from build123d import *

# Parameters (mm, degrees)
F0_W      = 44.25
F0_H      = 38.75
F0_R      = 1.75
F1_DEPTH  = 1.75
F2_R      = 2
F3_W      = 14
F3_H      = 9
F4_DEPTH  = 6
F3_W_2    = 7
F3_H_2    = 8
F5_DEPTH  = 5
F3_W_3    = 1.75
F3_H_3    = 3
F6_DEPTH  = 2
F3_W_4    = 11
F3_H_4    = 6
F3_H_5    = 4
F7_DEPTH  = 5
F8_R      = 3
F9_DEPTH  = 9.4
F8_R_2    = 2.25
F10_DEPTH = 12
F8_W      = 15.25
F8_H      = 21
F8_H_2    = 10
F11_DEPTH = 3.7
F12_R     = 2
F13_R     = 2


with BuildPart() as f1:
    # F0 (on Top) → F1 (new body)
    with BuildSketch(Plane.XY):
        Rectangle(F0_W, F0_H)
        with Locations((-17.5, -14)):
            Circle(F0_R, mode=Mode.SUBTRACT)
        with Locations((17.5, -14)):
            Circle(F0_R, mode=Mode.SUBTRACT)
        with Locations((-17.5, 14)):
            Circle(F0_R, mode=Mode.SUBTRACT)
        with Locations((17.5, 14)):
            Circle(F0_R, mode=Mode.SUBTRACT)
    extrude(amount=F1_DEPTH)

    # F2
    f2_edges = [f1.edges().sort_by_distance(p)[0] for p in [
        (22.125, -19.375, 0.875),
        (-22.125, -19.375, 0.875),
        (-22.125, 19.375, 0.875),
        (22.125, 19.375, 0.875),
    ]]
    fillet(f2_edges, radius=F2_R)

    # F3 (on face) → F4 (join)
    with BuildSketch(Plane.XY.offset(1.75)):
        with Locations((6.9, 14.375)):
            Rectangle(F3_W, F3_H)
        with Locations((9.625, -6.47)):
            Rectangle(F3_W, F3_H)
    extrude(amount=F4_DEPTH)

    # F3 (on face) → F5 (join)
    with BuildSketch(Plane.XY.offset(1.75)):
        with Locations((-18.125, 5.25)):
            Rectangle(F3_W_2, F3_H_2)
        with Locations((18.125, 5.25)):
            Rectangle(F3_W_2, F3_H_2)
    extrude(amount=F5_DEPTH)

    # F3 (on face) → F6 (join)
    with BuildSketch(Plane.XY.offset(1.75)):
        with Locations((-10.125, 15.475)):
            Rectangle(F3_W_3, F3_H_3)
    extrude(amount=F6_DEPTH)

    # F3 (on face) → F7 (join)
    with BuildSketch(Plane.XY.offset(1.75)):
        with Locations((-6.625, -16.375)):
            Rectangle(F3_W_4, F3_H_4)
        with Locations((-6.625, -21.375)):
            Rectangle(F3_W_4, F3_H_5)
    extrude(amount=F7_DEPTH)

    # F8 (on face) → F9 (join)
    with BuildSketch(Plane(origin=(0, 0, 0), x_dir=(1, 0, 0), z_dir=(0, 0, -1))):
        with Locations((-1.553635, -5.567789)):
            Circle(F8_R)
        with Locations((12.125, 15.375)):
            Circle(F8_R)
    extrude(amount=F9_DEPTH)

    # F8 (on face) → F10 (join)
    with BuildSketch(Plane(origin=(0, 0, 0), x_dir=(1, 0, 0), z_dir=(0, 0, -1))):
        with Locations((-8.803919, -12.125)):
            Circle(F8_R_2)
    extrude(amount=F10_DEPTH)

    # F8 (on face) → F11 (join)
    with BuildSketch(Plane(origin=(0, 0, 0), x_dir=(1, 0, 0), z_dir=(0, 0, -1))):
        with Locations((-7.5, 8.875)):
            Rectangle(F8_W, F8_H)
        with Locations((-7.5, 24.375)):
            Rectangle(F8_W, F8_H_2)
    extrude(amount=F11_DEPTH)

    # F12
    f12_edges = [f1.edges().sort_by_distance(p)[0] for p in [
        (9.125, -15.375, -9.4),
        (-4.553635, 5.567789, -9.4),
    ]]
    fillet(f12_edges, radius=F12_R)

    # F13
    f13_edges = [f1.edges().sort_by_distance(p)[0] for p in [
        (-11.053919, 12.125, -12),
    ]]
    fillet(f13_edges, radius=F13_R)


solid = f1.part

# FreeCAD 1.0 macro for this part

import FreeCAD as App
import Part
import Sketcher
from FreeCAD import Vector
Q = App.Units.Quantity


def edges_at(feature, points):
    """Names of the edges that pass closest to the given points."""
    edges = feature.Shape.Edges
    near = lambda p: min(range(len(edges)), key=lambda i: edges[i].distToShape(Part.Vertex(*p))[0])
    return sorted({f"Edge{near(p) + 1}" for p in points})


def add_polygon(sketch, points):
    """Adds a closed chain of lines whose ends are joined by coincident constraints."""
    first, n = sketch.GeometryCount, len(points)
    for a, b in zip(points, points[1:] + points[:1]):
        sketch.addGeometry(Part.LineSegment(App.Vector(*a, 0), App.Vector(*b, 0)), False)
    for i in range(n):
        sketch.addConstraint(Sketcher.Constraint("Coincident", first + i, 2, first + (i + 1) % n, 1))

doc = App.newDocument("Part")
params = doc.addObject("Spreadsheet::Sheet", "Params")
for row, (alias, value) in enumerate([
    ("sketch1_diameter", "3.5 mm"),
    ("sketch1_width", "44.25 mm"),
    ("sketch1_height", "38.75 mm"),
    ("pad1_length", "1.75 mm"),
    ("fillet_radius", "2 mm"),
    ("sketch2_width", "14 mm"),
    ("sketch2_height", "9 mm"),
    ("pad2_length", "6 mm"),
    ("sketch3_width", "7 mm"),
    ("sketch3_height", "8 mm"),
    ("pad3_length", "5 mm"),
    ("sketch4_height", "3 mm"),
    ("sketch4_width", "1.75 mm"),
    ("pad4_length", "2 mm"),
    ("sketch5_width", "11 mm"),
    ("sketch5_height", "10 mm"),
    ("pad5_length", "5 mm"),
    ("sketch6_diameter", "6 mm"),
    ("pad6_length", "9.4 mm"),
    ("sketch7_diameter", "4.5 mm"),
    ("pad7_length", "12 mm"),
    ("sketch8_height", "31 mm"),
    ("sketch8_width", "15.25 mm"),
    ("pad8_length", "3.7 mm"),
    ("fillet2_radius", "2 mm"),
    ("fillet3_radius", "2 mm"),
], start=1):
    params.set(f"A{row}", alias)
    params.set(f"B{row}", "=" + value)
    params.setAlias(f"B{row}", alias)

body = doc.addObject("PartDesign::Body", "Body")

sketch1 = body.newObject("Sketcher::SketchObject", "Sketch")
sketch1.AttachmentSupport = (doc.getObject("XY_Plane"), [""])
sketch1.MapMode = "FlatFace"
add_polygon(sketch1, [(-22.1, 19.4), (-22.1, -19.4), (22.1, -19.4), (22.1, 19.4)])
sketch1.addGeometry(Part.Circle(Vector(-17.5, -14, 0), Vector(0, 0, 1), 1.8), False)
sketch1.addGeometry(Part.Circle(Vector(17.5, -14, 0), Vector(0, 0, 1), 1.8), False)
sketch1.addGeometry(Part.Circle(Vector(-17.5, 14, 0), Vector(0, 0, 1), 1.8), False)
sketch1.addGeometry(Part.Circle(Vector(17.5, 14, 0), Vector(0, 0, 1), 1.8), False)
sketch1.addConstraint(Sketcher.Constraint("Vertical", 0))
sketch1.addConstraint(Sketcher.Constraint("Horizontal", 1))
sketch1.addConstraint(Sketcher.Constraint("Vertical", 2))
sketch1.addConstraint(Sketcher.Constraint("Horizontal", 3))
sketch1.addConstraint(Sketcher.Constraint("Equal", 4, 5))
sketch1.addConstraint(Sketcher.Constraint("Equal", 5, 6))
sketch1.addConstraint(Sketcher.Constraint("Equal", 6, 7))
sketch1.addConstraint(Sketcher.Constraint("Symmetric", 5, 3, 6, 3, -1, 1))
sketch1.addConstraint(Sketcher.Constraint("Symmetric", 4, 3, 7, 3, -1, 1))
sketch1.addConstraint(Sketcher.Constraint("Symmetric", 0, 2, 2, 2, -1, 1))
sketch1.addConstraint(Sketcher.Constraint("Symmetric", 4, 3, 5, 3, -2))
sketch1.addConstraint(Sketcher.Constraint("Diameter", 4, Q("3.5 mm")))
sketch1.addConstraint(Sketcher.Constraint("DistanceY", 4, 3, -1, 1, Q("14 mm")))
sketch1.addConstraint(Sketcher.Constraint("DistanceX", 4, 3, 5, 3, Q("35 mm")))
sketch1.addConstraint(Sketcher.Constraint("DistanceX", 1, 1, 1, 2, Q("44.25 mm")))
sketch1.addConstraint(Sketcher.Constraint("DistanceY", 0, 2, 0, 1, Q("38.75 mm")))
sketch1.setExpression("Constraints[15]", "Params.sketch1_diameter")
sketch1.setExpression("Constraints[18]", "Params.sketch1_width")
sketch1.setExpression("Constraints[19]", "Params.sketch1_height")
pad1 = body.newObject("PartDesign::Pad", "Pad")
pad1.Profile = sketch1
pad1.setExpression("Length", "Params.pad1_length")
doc.recompute()

fillet = body.newObject("PartDesign::Fillet", "Fillet")
fillet.Base = (pad1, edges_at(pad1, [
    (22.125, -19.375, 0.875),
    (-22.125, -19.375, 0.875),
    (-22.125, 19.375, 0.875),
    (22.125, 19.375, 0.875),
]))
fillet.setExpression("Radius", "Params.fillet_radius")

sketch2 = body.newObject("Sketcher::SketchObject", "Sketch001")
sketch2.AttachmentSupport = (doc.getObject("XY_Plane"), [""])
sketch2.MapMode = "FlatFace"
sketch2.AttachmentOffset = App.Placement(Vector(0, 0, 1.75), App.Rotation())
add_polygon(sketch2, [(0, 19), (0, 10), (14, 10), (14, 19)])
add_polygon(sketch2, [(3, -2), (3, -11), (17, -11), (17, -2)])
sketch2.addConstraint(Sketcher.Constraint("Vertical", 0))
sketch2.addConstraint(Sketcher.Constraint("Horizontal", 1))
sketch2.addConstraint(Sketcher.Constraint("Vertical", 2))
sketch2.addConstraint(Sketcher.Constraint("Horizontal", 3))
sketch2.addConstraint(Sketcher.Constraint("Vertical", 4))
sketch2.addConstraint(Sketcher.Constraint("Horizontal", 5))
sketch2.addConstraint(Sketcher.Constraint("Vertical", 6))
sketch2.addConstraint(Sketcher.Constraint("Horizontal", 7))
sketch2.addConstraint(Sketcher.Constraint("Equal", 3, 5))
sketch2.addConstraint(Sketcher.Constraint("Equal", 2, 4))
sketch2.addConstraint(Sketcher.Constraint("DistanceX", 1, 1, 1, 2, Q("14 mm")))
sketch2.addConstraint(Sketcher.Constraint("DistanceY", 0, 2, 0, 1, Q("9 mm")))
sketch2.addConstraint(Sketcher.Constraint("DistanceX", 0, 2, -1, 1, Q("0.1 mm")))
sketch2.addConstraint(Sketcher.Constraint("DistanceY", 4, 2, -1, 1, Q("10.97 mm")))
sketch2.addConstraint(Sketcher.Constraint("DistanceY", -1, 1, 0, 2, Q("9.875 mm")))
sketch2.addConstraint(Sketcher.Constraint("DistanceX", -1, 1, 4, 2, Q("2.625 mm")))
sketch2.setExpression("Constraints[18]", "Params.sketch2_width")
sketch2.setExpression("Constraints[19]", "Params.sketch2_height")
pad2 = body.newObject("PartDesign::Pad", "Pad001")
pad2.Profile = sketch2
pad2.setExpression("Length", "Params.pad2_length")

sketch3 = body.newObject("Sketcher::SketchObject", "Sketch002")
sketch3.AttachmentSupport = (doc.getObject("XY_Plane"), [""])
sketch3.MapMode = "FlatFace"
sketch3.AttachmentOffset = App.Placement(Vector(0, 0, 1.75), App.Rotation())
add_polygon(sketch3, [(-22, 9), (-22, 1), (-15, 1), (-15, 9)])
add_polygon(sketch3, [(15, 9), (15, 1), (22, 1), (22, 9)])
sketch3.addConstraint(Sketcher.Constraint("Vertical", 0))
sketch3.addConstraint(Sketcher.Constraint("Horizontal", 1))
sketch3.addConstraint(Sketcher.Constraint("Vertical", 2))
sketch3.addConstraint(Sketcher.Constraint("Horizontal", 3))
sketch3.addConstraint(Sketcher.Constraint("Vertical", 4))
sketch3.addConstraint(Sketcher.Constraint("Horizontal", 5))
sketch3.addConstraint(Sketcher.Constraint("Vertical", 6))
sketch3.addConstraint(Sketcher.Constraint("Horizontal", 7))
sketch3.addConstraint(Sketcher.Constraint("Symmetric", 1, 2, 4, 2, -2))
sketch3.addConstraint(Sketcher.Constraint("Symmetric", 3, 2, 6, 2, -2))
sketch3.addConstraint(Sketcher.Constraint("DistanceX", 1, 1, 1, 2, Q("7 mm")))
sketch3.addConstraint(Sketcher.Constraint("DistanceY", 0, 2, 0, 1, Q("8 mm")))
sketch3.addConstraint(Sketcher.Constraint("DistanceY", -1, 1, 0, 2, Q("1.25 mm")))
sketch3.addConstraint(Sketcher.Constraint("DistanceX", 1, 2, 4, 2, Q("29.25 mm")))
sketch3.setExpression("Constraints[18]", "Params.sketch3_width")
sketch3.setExpression("Constraints[19]", "Params.sketch3_height")
pad3 = body.newObject("PartDesign::Pad", "Pad002")
pad3.Profile = sketch3
pad3.setExpression("Length", "Params.pad3_length")

sketch4 = body.newObject("Sketcher::SketchObject", "Sketch003")
sketch4.AttachmentSupport = (doc.getObject("XY_Plane"), [""])
sketch4.MapMode = "FlatFace"
sketch4.AttachmentOffset = App.Placement(Vector(0, 0, 1.75), App.Rotation())
add_polygon(sketch4, [(-11, 17), (-11, 14), (-9.2, 14), (-9.2, 17)])
sketch4.addConstraint(Sketcher.Constraint("Vertical", 0))
sketch4.addConstraint(Sketcher.Constraint("Horizontal", 1))
sketch4.addConstraint(Sketcher.Constraint("Vertical", 2))
sketch4.addConstraint(Sketcher.Constraint("Horizontal", 3))
sketch4.addConstraint(Sketcher.Constraint("DistanceY", 0, 2, 0, 1, Q("3 mm")))
sketch4.addConstraint(Sketcher.Constraint("DistanceX", 0, 2, -1, 1, Q("11 mm")))
sketch4.addConstraint(Sketcher.Constraint("DistanceX", 1, 1, 1, 2, Q("1.75 mm")))
sketch4.addConstraint(Sketcher.Constraint("DistanceY", -1, 1, 0, 2, Q("13.975 mm")))
sketch4.setExpression("Constraints[8]", "Params.sketch4_height")
sketch4.setExpression("Constraints[10]", "Params.sketch4_width")
pad4 = body.newObject("PartDesign::Pad", "Pad003")
pad4.Profile = sketch4
pad4.setExpression("Length", "Params.pad4_length")

sketch5 = body.newObject("Sketcher::SketchObject", "Sketch004")
sketch5.AttachmentSupport = (doc.getObject("XY_Plane"), [""])
sketch5.MapMode = "FlatFace"
sketch5.AttachmentOffset = App.Placement(Vector(0, 0, 1.75), App.Rotation())
add_polygon(sketch5, [(-12, -13), (-12, -23), (-1, -23), (-1, -13)])
sketch5.addConstraint(Sketcher.Constraint("Vertical", 0))
sketch5.addConstraint(Sketcher.Constraint("Horizontal", 1))
sketch5.addConstraint(Sketcher.Constraint("Vertical", 2))
sketch5.addConstraint(Sketcher.Constraint("Horizontal", 3))
sketch5.addConstraint(Sketcher.Constraint("DistanceX", 1, 1, 1, 2, Q("11 mm")))
sketch5.addConstraint(Sketcher.Constraint("DistanceY", 0, 2, 0, 1, Q("10 mm")))
sketch5.addConstraint(Sketcher.Constraint("DistanceX", 0, 2, -1, 1, Q("12.125 mm")))
sketch5.addConstraint(Sketcher.Constraint("DistanceY", 0, 2, -1, 1, Q("23.375 mm")))
sketch5.setExpression("Constraints[8]", "Params.sketch5_width")
sketch5.setExpression("Constraints[9]", "Params.sketch5_height")
pad5 = body.newObject("PartDesign::Pad", "Pad004")
pad5.Profile = sketch5
pad5.setExpression("Length", "Params.pad5_length")

sketch6 = body.newObject("Sketcher::SketchObject", "Sketch005")
sketch6.AttachmentSupport = (doc.getObject("XY_Plane"), [""])
sketch6.MapMode = "FlatFace"
sketch6.addGeometry(Part.Circle(Vector(-1.6, 5.6, 0), Vector(0, 0, 1), 3), False)
sketch6.addGeometry(Part.Circle(Vector(12.1, -15.4, 0), Vector(0, 0, 1), 3), False)
sketch6.addConstraint(Sketcher.Constraint("Equal", 0, 1))
sketch6.addConstraint(Sketcher.Constraint("Diameter", 0, Q("6 mm")))
sketch6.addConstraint(Sketcher.Constraint("DistanceX", -1, 1, 1, 3, Q("12.125 mm")))
sketch6.addConstraint(Sketcher.Constraint("DistanceY", 1, 3, -1, 1, Q("15.375 mm")))
sketch6.addConstraint(Sketcher.Constraint("DistanceY", -1, 1, 0, 3, Q("5.567789 mm")))
sketch6.addConstraint(Sketcher.Constraint("DistanceX", 0, 3, -1, 1, Q("1.553635 mm")))
sketch6.setExpression("Constraints[1]", "Params.sketch6_diameter")
pad6 = body.newObject("PartDesign::Pad", "Pad005")
pad6.Profile = sketch6
pad6.setExpression("Length", "Params.pad6_length")
pad6.Reversed = True

sketch7 = body.newObject("Sketcher::SketchObject", "Sketch006")
sketch7.AttachmentSupport = (doc.getObject("XY_Plane"), [""])
sketch7.MapMode = "FlatFace"
sketch7.addGeometry(Part.Circle(Vector(-8.8, 12.1, 0), Vector(0, 0, 1), 2.2), False)
sketch7.addConstraint(Sketcher.Constraint("Diameter", 0, Q("4.5 mm")))
sketch7.addConstraint(Sketcher.Constraint("DistanceY", -1, 1, 0, 3, Q("12.125 mm")))
sketch7.addConstraint(Sketcher.Constraint("DistanceX", 0, 3, -1, 1, Q("8.803919 mm")))
sketch7.setExpression("Constraints[0]", "Params.sketch7_diameter")
pad7 = body.newObject("PartDesign::Pad", "Pad006")
pad7.Profile = sketch7
pad7.setExpression("Length", "Params.pad7_length")
pad7.Reversed = True

sketch8 = body.newObject("Sketcher::SketchObject", "Sketch007")
sketch8.AttachmentSupport = (doc.getObject("XY_Plane"), [""])
sketch8.MapMode = "FlatFace"
add_polygon(sketch8, [(-15, 2), (0, 2), (0, -29), (-15, -29)])
sketch8.addConstraint(Sketcher.Constraint("Horizontal", 0))
sketch8.addConstraint(Sketcher.Constraint("Vertical", 1))
sketch8.addConstraint(Sketcher.Constraint("Horizontal", 2))
sketch8.addConstraint(Sketcher.Constraint("Vertical", 3))
sketch8.addConstraint(Sketcher.Constraint("DistanceY", 1, 2, 1, 1, Q("31 mm")))
sketch8.addConstraint(Sketcher.Constraint("DistanceX", 0, 1, 0, 2, Q("15.25 mm")))
sketch8.addConstraint(Sketcher.Constraint("DistanceX", -1, 1, 0, 2, Q("0.125 mm")))
sketch8.addConstraint(Sketcher.Constraint("DistanceY", -1, 1, 0, 2, Q("1.625 mm")))
sketch8.setExpression("Constraints[8]", "Params.sketch8_height")
sketch8.setExpression("Constraints[9]", "Params.sketch8_width")
pad8 = body.newObject("PartDesign::Pad", "Pad007")
pad8.Profile = sketch8
pad8.setExpression("Length", "Params.pad8_length")
pad8.Reversed = True
doc.recompute()

fillet2 = body.newObject("PartDesign::Fillet", "Fillet001")
fillet2.Base = (pad8, edges_at(pad8, [(9.125, -15.375, -9.4), (-4.554, 5.568, -9.4)]))
fillet2.setExpression("Radius", "Params.fillet2_radius")
doc.recompute()

fillet3 = body.newObject("PartDesign::Fillet", "Fillet002")
fillet3.Base = (fillet2, edges_at(fillet2, [(-11.054, 12.125, -12)]))
fillet3.setExpression("Radius", "Params.fillet3_radius")

doc.recompute()
